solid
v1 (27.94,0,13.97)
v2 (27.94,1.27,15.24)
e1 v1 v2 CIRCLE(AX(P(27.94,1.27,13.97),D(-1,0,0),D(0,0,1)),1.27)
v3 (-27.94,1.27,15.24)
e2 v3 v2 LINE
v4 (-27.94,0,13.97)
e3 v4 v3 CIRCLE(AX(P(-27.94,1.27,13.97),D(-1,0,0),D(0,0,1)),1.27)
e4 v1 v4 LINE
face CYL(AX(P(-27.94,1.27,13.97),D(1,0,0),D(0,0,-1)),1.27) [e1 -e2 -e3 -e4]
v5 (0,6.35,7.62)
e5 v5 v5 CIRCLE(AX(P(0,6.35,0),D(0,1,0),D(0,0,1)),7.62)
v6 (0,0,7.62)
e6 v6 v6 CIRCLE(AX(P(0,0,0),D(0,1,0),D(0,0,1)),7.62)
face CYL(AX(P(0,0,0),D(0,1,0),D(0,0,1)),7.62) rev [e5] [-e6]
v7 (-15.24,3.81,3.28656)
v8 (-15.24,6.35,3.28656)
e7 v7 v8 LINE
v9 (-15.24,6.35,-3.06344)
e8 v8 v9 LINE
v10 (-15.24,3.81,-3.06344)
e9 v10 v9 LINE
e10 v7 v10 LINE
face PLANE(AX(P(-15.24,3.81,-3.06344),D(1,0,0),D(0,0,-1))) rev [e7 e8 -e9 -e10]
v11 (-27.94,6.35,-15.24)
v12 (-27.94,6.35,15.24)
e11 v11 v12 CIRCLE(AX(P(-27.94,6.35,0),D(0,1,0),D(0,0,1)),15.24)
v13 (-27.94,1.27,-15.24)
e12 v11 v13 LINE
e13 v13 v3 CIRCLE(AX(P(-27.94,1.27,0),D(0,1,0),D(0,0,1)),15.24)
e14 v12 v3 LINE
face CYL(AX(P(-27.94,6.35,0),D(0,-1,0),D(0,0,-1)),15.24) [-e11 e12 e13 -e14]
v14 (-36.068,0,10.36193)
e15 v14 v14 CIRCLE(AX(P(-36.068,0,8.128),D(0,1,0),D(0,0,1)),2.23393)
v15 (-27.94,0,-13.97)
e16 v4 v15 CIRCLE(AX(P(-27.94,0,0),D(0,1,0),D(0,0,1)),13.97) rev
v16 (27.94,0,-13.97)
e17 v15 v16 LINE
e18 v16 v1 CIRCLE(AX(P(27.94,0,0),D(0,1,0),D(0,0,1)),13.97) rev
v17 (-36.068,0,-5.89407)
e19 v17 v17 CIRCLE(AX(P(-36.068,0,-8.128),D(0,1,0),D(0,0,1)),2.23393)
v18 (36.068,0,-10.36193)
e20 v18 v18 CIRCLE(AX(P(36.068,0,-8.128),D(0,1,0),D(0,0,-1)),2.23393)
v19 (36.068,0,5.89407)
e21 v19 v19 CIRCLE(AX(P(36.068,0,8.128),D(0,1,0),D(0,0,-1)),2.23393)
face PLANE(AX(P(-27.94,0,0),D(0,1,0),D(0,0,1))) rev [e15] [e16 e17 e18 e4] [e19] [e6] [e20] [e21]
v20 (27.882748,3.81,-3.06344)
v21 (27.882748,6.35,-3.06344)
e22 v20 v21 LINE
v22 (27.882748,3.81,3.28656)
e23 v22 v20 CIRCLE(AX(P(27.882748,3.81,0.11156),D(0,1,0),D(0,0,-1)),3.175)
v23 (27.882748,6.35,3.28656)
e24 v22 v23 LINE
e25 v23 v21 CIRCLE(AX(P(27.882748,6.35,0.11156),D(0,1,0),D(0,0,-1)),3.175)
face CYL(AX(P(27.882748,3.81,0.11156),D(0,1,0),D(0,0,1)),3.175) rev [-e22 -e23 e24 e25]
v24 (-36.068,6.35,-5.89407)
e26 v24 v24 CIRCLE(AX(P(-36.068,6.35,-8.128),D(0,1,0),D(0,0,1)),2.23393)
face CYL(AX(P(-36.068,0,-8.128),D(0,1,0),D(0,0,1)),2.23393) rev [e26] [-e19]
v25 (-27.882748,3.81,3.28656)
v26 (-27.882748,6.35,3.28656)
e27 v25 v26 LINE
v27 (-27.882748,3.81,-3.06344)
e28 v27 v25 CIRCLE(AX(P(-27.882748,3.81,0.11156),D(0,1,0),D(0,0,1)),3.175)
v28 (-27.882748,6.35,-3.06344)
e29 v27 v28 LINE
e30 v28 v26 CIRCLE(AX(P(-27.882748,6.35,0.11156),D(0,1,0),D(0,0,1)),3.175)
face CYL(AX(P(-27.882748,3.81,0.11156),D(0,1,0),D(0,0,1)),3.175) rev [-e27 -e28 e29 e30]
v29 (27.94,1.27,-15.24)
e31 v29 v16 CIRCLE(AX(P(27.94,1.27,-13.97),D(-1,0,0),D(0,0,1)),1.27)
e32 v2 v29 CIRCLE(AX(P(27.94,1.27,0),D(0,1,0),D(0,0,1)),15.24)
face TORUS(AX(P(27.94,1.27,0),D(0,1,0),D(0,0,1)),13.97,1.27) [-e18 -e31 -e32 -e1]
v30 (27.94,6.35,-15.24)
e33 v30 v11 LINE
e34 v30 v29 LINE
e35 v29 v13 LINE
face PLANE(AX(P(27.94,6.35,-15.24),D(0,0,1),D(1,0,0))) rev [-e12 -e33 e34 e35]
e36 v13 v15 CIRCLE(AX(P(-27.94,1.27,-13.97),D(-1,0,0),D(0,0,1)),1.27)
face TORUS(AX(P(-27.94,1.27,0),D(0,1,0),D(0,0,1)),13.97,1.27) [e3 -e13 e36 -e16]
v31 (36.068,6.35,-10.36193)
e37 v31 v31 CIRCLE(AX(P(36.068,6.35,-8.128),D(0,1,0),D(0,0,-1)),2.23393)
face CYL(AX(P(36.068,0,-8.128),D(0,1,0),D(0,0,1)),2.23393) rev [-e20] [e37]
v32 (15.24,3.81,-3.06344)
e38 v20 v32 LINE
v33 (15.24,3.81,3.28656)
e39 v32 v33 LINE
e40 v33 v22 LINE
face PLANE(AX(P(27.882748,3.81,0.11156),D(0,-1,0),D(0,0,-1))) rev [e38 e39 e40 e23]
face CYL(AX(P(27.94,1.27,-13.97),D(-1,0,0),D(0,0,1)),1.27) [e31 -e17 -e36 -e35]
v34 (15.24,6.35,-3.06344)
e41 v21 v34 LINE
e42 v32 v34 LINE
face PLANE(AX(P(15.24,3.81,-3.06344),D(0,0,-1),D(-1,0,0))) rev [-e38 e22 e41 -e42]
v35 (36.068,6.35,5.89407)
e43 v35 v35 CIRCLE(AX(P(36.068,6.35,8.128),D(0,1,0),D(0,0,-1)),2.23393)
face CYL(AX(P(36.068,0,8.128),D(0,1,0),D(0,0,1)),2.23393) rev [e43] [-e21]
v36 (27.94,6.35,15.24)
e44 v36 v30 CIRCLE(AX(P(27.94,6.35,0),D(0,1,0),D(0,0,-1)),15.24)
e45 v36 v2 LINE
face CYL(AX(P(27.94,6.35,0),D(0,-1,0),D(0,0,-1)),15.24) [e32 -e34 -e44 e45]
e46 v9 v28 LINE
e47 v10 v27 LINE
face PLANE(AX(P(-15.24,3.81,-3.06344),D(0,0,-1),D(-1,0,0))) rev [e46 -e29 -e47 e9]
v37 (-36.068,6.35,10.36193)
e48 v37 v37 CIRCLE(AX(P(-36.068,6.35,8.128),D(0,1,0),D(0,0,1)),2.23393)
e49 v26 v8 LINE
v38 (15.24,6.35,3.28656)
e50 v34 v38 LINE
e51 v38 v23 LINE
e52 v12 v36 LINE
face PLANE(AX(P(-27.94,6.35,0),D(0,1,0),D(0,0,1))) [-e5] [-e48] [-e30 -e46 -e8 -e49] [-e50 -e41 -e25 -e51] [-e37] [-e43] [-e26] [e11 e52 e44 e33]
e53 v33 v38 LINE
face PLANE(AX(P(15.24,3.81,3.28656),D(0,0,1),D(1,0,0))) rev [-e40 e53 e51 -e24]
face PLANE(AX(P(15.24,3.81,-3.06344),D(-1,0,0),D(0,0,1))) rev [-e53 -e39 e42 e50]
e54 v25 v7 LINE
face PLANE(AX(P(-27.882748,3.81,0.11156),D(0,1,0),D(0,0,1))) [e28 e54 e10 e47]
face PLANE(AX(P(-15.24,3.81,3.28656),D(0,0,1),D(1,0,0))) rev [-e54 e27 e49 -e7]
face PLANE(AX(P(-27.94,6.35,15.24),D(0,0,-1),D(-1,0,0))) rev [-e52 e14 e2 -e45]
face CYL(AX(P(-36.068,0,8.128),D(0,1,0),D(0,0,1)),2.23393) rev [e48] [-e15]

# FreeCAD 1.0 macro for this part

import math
import FreeCAD as App
import Part
import Sketcher
Q = App.Units.Quantity


def edges_at(feature, points):
    """Names of the edges that pass closest to the given points."""
    edges = feature.Shape.Edges
    near = lambda p: min(range(len(edges)), key=lambda i: edges[i].distToShape(Part.Vertex(*p))[0])
    return sorted({f"Edge{near(p) + 1}" for p in points})

doc = App.newDocument("Part")
body = doc.addObject("PartDesign::Body", "Body")

sketch1 = body.newObject("Sketcher::SketchObject", "Sketch")
sketch1.AttachmentSupport = (doc.getObject("XZ_Plane"), [""])
sketch1.MapMode = "FlatFace"
sketch1.addGeometry([
    Part.LineSegment(App.Vector(27.94, -15.24, 0), App.Vector(-27.94, -15.24, 0)),
    Part.ArcOfCircle(Part.Circle(App.Vector(-27.94, 0, 0), App.Vector(0, 0, 1), 15.24), math.radians(90), math.radians(270)),
    Part.LineSegment(App.Vector(-27.94, 15.24, 0), App.Vector(27.94, 15.24, 0)),
    Part.ArcOfCircle(Part.Circle(App.Vector(27.94, 0, 0), App.Vector(0, 0, 1), 15.24), math.radians(-90), math.radians(90)),
], False)
sketch1.addConstraint([
    Sketcher.Constraint("Tangent", 0, 2, 1, 2),
    Sketcher.Constraint("Tangent", 1, 1, 2, 1),
    Sketcher.Constraint("Tangent", 2, 2, 3, 2),
    Sketcher.Constraint("Tangent", 3, 1, 0, 1),
    Sketcher.Constraint("Horizontal", 0),
    Sketcher.Constraint("Horizontal", 2),
    Sketcher.Constraint("Symmetric", 1, 3, 3, 3, -1, 1),
    Sketcher.Constraint("Radius", 1, Q("0.6 in")),
    Sketcher.Constraint("DistanceX", 0, 2, 0, 1, Q("2.2 in")),
])
pad1 = body.newObject("PartDesign::Pad", "Pad")
pad1.Profile = sketch1
pad1.Length = Q("0.25 in")
pad1.Reversed = True

sketch2 = body.newObject("Sketcher::SketchObject", "Sketch001")
sketch2.AttachmentSupport = (doc.getObject("XZ_Plane"), [""])
sketch2.MapMode = "FlatFace"
sketch2.AttachmentOffset = App.Placement(App.Vector(0, 0, -0.25 * 25.4), App.Rotation())
sketch2.addGeometry([
    Part.LineSegment(App.Vector(-15.24, -3.06344, 0), App.Vector(-27.882748, -3.06344, 0)),
    Part.ArcOfCircle(Part.Circle(App.Vector(-27.882748, 0.11156, 0), App.Vector(0, 0, 1), 3.175), math.radians(90), math.radians(270)),
    Part.LineSegment(App.Vector(-27.882748, 3.28656, 0), App.Vector(-15.24, 3.28656, 0)),
    Part.LineSegment(App.Vector(-15.24, 3.28656, 0), App.Vector(-15.24, -3.06344, 0)),
    Part.LineSegment(App.Vector(15.24, -3.06344, 0), App.Vector(15.24, 3.28656, 0)),
    Part.LineSegment(App.Vector(15.24, 3.28656, 0), App.Vector(27.882748, 3.28656, 0)),
    Part.ArcOfCircle(Part.Circle(App.Vector(27.882748, 0.11156, 0), App.Vector(0, 0, 1), 3.175), math.radians(-90), math.radians(90)),
    Part.LineSegment(App.Vector(27.882748, -3.06344, 0), App.Vector(15.24, -3.06344, 0)),
], False)
sketch2.addConstraint([
    Sketcher.Constraint("Tangent", 0, 2, 1, 2),
    Sketcher.Constraint("Tangent", 1, 1, 2, 1),
    Sketcher.Constraint("Coincident", 2, 2, 3, 1),
    Sketcher.Constraint("Coincident", 3, 2, 0, 1),
    Sketcher.Constraint("Coincident", 4, 2, 5, 1),
    Sketcher.Constraint("Tangent", 5, 2, 6, 2),
    Sketcher.Constraint("Tangent", 6, 1, 7, 1),
    Sketcher.Constraint("Coincident", 7, 2, 4, 1),
    Sketcher.Constraint("Horizontal", 0),
    Sketcher.Constraint("Horizontal", 2),
    Sketcher.Constraint("Vertical", 3),
    Sketcher.Constraint("Vertical", 4),
    Sketcher.Constraint("Horizontal", 5),
    Sketcher.Constraint("Horizontal", 7),
    Sketcher.Constraint("Equal", 1, 6),
    Sketcher.Constraint("Symmetric", 1, 3, 6, 3, -2),
    Sketcher.Constraint("Equal", 2, 5),
    Sketcher.Constraint("Radius", 1, Q("0.125 in")),
    Sketcher.Constraint("DistanceX", 2, 2, -1, 1, Q("0.6 in")),
    Sketcher.Constraint("DistanceX", 0, 2, 0, 1, 12.642748),
    Sketcher.Constraint("DistanceY", -1, 1, 1, 3, 0.11156),
])
pocket1 = body.newObject("PartDesign::Pocket", "Pocket")
pocket1.Profile = sketch2
pocket1.Length = Q("0.1 in")
pocket1.Reversed = True

sketch3 = body.newObject("Sketcher::SketchObject", "Sketch002")
sketch3.AttachmentSupport = (doc.getObject("XZ_Plane"), [""])
sketch3.MapMode = "FlatFace"
sketch3.AttachmentOffset = App.Placement(App.Vector(0, 0, -0.25 * 25.4), App.Rotation())
sketch3.addGeometry(Part.Circle(App.Vector(0, 0, 0), App.Vector(0, 0, 1), 7.62), False)
sketch3.addConstraint([
    Sketcher.Constraint("Coincident", 0, 3, -1, 1),
    Sketcher.Constraint("Diameter", 0, Q("0.6 in")),
])
pocket2 = body.newObject("PartDesign::Pocket", "Pocket001")
pocket2.Profile = sketch3
pocket2.Type = "ThroughAll"
pocket2.Reversed = True
doc.recompute()

fillet = body.newObject("PartDesign::Fillet", "Fillet")
fillet.Base = (pocket2, edges_at(pocket2, [
    (0, 0, -15.24),
    (43.18, 0, 0),
    (0, 0, 15.24),
    (-43.18, 0, 0),
]))
fillet.Radius = Q("0.05 in")

sketch4 = body.newObject("Sketcher::SketchObject", "Sketch003")
sketch4.AttachmentSupport = (doc.getObject("XZ_Plane"), [""])
sketch4.MapMode = "FlatFace"
sketch4.AttachmentOffset = App.Placement(App.Vector(0, 0, -0.25 * 25.4), App.Rotation())
sketch4.addGeometry([
    Part.Circle(App.Vector(-36.068, -8.128, 0), App.Vector(0, 0, 1), 2.23393),
    Part.Circle(App.Vector(-36.068, 8.128, 0), App.Vector(0, 0, 1), 2.23393),
    Part.Circle(App.Vector(36.068, -8.128, 0), App.Vector(0, 0, 1), 2.23393),
    Part.Circle(App.Vector(36.068, 8.128, 0), App.Vector(0, 0, 1), 2.23393),
], False)
sketch4.addConstraint([
    Sketcher.Constraint("Equal", 0, 1),
    Sketcher.Constraint("Equal", 1, 2),
    Sketcher.Constraint("Equal", 2, 3),
    Sketcher.Constraint("Symmetric", 1, 3, 2, 3, -1, 1),
    Sketcher.Constraint("Symmetric", 0, 3, 3, 3, -1, 1),
    Sketcher.Constraint("Symmetric", 0, 3, 2, 3, -2),
    Sketcher.Constraint("Diameter", 0, Q("0.1759 in")),
    Sketcher.Constraint("DistanceX", 0, 3, -1, 1, Q("1.42 in")),
    Sketcher.Constraint("DistanceY", 0, 3, -1, 1, Q("0.32 in")),
])
pocket3 = body.newObject("PartDesign::Pocket", "Pocket002")
pocket3.Profile = sketch4
pocket3.Type = "ThroughAll"
pocket3.Reversed = True

doc.recompute()
